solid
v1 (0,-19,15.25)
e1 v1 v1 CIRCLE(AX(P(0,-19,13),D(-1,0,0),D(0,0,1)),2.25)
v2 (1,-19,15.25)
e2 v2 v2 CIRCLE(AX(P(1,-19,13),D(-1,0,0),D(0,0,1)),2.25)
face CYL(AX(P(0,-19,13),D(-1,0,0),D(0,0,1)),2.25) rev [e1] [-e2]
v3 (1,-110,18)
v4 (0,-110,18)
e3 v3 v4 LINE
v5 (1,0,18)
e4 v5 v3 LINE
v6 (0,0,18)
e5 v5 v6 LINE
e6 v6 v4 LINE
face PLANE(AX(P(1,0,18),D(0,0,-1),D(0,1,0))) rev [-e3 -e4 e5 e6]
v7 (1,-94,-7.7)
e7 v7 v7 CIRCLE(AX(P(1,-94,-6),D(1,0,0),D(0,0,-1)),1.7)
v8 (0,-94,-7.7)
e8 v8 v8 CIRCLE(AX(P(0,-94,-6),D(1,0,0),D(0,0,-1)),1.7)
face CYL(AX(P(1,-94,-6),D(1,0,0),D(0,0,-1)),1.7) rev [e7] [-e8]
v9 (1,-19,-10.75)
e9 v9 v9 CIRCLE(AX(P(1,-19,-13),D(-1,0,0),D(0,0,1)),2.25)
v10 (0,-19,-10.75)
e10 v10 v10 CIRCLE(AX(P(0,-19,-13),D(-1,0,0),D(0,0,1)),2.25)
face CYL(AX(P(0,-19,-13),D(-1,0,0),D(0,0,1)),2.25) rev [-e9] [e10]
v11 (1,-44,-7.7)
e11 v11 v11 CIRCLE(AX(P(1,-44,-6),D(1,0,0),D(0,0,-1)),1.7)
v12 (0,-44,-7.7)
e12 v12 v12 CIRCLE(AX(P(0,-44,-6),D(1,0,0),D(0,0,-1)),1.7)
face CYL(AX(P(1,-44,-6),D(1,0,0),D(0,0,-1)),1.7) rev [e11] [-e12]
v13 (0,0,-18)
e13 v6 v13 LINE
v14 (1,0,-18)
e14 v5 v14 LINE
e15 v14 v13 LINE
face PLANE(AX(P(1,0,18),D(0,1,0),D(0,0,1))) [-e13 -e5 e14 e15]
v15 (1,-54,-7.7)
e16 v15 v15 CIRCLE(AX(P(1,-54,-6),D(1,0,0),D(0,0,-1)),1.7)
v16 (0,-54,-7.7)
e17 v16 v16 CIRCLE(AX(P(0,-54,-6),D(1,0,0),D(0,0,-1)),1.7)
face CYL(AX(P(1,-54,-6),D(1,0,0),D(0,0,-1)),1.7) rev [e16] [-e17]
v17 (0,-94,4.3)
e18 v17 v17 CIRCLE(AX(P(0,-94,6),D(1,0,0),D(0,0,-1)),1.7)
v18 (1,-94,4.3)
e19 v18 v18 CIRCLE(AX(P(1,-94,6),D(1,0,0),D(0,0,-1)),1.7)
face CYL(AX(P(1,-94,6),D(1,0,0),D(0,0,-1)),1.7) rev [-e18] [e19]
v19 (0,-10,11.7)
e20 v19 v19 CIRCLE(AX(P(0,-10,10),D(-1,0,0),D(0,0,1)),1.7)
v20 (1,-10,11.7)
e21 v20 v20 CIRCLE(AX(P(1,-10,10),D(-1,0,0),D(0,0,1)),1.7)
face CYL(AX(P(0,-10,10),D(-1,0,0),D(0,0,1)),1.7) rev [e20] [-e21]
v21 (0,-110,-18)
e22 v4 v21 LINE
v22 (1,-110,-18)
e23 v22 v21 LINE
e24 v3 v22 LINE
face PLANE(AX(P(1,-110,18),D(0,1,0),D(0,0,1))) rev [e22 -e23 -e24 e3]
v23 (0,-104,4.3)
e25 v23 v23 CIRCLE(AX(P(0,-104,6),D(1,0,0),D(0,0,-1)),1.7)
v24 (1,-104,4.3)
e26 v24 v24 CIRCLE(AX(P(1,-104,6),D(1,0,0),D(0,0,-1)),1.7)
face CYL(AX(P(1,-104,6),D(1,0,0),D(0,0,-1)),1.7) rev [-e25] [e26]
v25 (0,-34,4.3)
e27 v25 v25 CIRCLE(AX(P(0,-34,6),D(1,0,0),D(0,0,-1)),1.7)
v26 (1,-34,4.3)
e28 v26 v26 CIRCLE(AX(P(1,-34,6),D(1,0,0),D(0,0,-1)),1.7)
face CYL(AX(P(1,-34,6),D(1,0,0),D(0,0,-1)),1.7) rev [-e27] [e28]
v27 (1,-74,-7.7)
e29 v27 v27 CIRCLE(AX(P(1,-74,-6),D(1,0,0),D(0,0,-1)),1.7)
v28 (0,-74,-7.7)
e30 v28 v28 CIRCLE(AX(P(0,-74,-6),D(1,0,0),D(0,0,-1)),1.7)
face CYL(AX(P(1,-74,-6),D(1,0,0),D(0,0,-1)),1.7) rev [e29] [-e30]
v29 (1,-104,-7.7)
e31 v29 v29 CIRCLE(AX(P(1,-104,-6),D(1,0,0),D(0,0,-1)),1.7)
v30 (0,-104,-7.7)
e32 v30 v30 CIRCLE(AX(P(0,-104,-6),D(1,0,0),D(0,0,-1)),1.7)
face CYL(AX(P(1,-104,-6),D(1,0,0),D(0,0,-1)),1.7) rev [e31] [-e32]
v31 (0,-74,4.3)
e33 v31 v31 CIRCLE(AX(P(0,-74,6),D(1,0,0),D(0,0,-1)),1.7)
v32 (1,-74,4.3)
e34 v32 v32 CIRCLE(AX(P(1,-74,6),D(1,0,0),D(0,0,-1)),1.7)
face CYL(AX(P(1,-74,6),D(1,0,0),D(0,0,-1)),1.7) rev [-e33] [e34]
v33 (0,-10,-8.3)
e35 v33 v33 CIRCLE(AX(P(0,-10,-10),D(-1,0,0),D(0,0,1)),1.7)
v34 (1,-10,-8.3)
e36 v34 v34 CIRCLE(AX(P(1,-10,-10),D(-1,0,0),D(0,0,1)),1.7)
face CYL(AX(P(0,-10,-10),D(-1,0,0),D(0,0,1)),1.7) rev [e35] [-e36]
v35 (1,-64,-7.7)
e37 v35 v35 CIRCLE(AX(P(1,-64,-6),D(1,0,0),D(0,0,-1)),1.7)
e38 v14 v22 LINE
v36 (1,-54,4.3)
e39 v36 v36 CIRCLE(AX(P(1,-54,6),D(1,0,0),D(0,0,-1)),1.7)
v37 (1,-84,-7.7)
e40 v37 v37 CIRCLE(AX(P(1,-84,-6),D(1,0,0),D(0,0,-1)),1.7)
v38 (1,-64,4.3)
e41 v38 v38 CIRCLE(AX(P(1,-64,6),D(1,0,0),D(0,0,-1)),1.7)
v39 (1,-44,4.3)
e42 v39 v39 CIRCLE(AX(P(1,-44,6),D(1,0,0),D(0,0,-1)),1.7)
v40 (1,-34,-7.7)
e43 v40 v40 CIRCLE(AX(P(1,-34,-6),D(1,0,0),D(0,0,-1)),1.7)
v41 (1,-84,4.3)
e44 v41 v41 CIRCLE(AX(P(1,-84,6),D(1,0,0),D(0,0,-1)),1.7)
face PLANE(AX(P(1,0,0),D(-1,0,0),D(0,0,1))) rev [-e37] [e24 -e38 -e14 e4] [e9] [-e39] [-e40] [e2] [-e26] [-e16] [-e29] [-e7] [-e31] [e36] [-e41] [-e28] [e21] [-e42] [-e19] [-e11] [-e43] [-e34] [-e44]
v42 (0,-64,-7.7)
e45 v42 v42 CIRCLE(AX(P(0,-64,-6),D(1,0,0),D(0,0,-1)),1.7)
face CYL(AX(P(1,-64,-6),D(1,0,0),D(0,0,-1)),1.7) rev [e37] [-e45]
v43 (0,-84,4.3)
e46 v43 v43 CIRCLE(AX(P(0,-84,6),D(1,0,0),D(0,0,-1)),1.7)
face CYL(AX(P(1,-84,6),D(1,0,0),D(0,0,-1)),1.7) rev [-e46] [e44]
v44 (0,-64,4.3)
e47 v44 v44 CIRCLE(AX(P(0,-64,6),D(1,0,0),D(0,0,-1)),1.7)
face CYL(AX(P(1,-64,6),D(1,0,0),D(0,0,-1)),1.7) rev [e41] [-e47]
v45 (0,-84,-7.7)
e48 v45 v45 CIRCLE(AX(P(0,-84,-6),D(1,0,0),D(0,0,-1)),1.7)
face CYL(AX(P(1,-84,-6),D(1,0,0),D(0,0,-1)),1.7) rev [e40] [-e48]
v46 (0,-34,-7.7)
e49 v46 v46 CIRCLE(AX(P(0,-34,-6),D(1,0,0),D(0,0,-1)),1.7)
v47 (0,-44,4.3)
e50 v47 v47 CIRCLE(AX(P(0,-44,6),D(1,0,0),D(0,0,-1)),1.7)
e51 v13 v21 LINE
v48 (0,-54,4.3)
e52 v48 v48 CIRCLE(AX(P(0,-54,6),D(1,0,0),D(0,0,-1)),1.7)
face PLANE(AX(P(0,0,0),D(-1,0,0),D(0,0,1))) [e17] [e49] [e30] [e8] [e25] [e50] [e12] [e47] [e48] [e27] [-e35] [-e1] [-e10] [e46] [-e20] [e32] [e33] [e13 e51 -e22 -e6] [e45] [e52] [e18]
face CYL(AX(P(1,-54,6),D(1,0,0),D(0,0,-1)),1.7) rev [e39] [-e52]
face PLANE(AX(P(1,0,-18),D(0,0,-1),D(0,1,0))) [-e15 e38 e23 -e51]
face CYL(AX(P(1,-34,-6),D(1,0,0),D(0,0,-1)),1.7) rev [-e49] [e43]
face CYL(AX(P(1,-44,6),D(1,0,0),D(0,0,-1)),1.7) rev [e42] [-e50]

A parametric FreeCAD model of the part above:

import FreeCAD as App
import Part
import Sketcher

V = App.Vector
Q = App.Units.Quantity

doc = App.newDocument("Part")
body = doc.addObject("PartDesign::Body", "Body")

sketch1 = body.newObject("Sketcher::SketchObject", "Sketch")
sketch1.AttachmentSupport = (doc.getObject("YZ_Plane"), [""])
sketch1.MapMode = "FlatFace"
sketch1.addGeometry([
    Part.LineSegment(V(0, 18, 0), V(-110, 18, 0)),
    Part.LineSegment(V(-110, 18, 0), V(-110, -18, 0)),
    Part.LineSegment(V(-110, -18, 0), V(0, -18, 0)),
    Part.LineSegment(V(0, -18, 0), V(0, 18, 0)),
], False)
sketch1.addConstraint([
    Sketcher.Constraint("Coincident", 0, 2, 1, 1),
    Sketcher.Constraint("Coincident", 1, 2, 2, 1),
    Sketcher.Constraint("Coincident", 2, 2, 3, 1),
    Sketcher.Constraint("Coincident", 3, 2, 0, 1),
    Sketcher.Constraint("Horizontal", 0),
    Sketcher.Constraint("Vertical", 1),
    Sketcher.Constraint("Horizontal", 2),
    Sketcher.Constraint("Vertical", 3),
    Sketcher.Constraint("Symmetric", 2, 2, 3, 2, -1, 1),
    Sketcher.Constraint("DistanceX", 0, 2, 0, 1, Q("110 mm")),
    Sketcher.Constraint("DistanceY", 1, 2, 1, 1, Q("36 mm")),
])
pad1 = body.newObject("PartDesign::Pad", "Pad")
pad1.Profile = sketch1
pad1.Length = 1

sketch2 = body.newObject("Sketcher::SketchObject", "Sketch001")
sketch2.AttachmentSupport = (doc.getObject("YZ_Plane"), [""])
sketch2.MapMode = "FlatFace"
sketch2.addGeometry([
    Part.Circle(V(-10, -10, 0), V(0, 0, 1), 1.7),
    Part.Circle(V(-10, 10, 0), V(0, 0, 1), 1.7),
], False)
sketch2.addConstraint([
    Sketcher.Constraint("Equal", 0, 1),
    Sketcher.Constraint("Symmetric", 0, 3, 1, 3, -1),
    Sketcher.Constraint("Diameter", 0, Q("3.4 mm")),
    Sketcher.Constraint("DistanceX", 0, 3, -1, 1, Q("10 mm")),
    Sketcher.Constraint("DistanceY", 0, 3, -1, 1, Q("10 mm")),
])
doc.recompute()
hole = body.newObject("PartDesign::Hole", "Hole")
hole.Profile = sketch2
hole.ThreadType = "None"
hole.Diameter = 3.4
hole.DepthType = "ThroughAll"
hole.Reversed = True

sketch3 = body.newObject("Sketcher::SketchObject", "Sketch002")
sketch3.AttachmentSupport = (doc.getObject("YZ_Plane"), [""])
sketch3.MapMode = "FlatFace"
sketch3.addGeometry([
    Part.Circle(V(-19, -13, 0), V(0, 0, 1), 2.2),
    Part.Circle(V(-19, 13, 0), V(0, 0, 1), 2.2),
], False)
sketch3.addConstraint([
    Sketcher.Constraint("Equal", 0, 1),
    Sketcher.Constraint("Symmetric", 0, 3, 1, 3, -1),
    Sketcher.Constraint("Diameter", 0, Q("4.5 mm")),
    Sketcher.Constraint("DistanceX", 0, 3, -1, 1, Q("19 mm")),
    Sketcher.Constraint("DistanceY", 0, 3, -1, 1, Q("13 mm")),
])
doc.recompute()
hole2 = body.newObject("PartDesign::Hole", "Hole001")
hole2.Profile = sketch3
hole2.ThreadType = "None"
hole2.Diameter = 4.5
hole2.DepthType = "ThroughAll"
hole2.Reversed = True

sketch4 = body.newObject("Sketcher::SketchObject", "Sketch003")
sketch4.AttachmentSupport = (doc.getObject("YZ_Plane"), [""])
sketch4.MapMode = "FlatFace"
sketch4.AttachmentOffset = App.Placement(V(0, 0, 1), App.Rotation())
sketch4.addGeometry([
    Part.Circle(V(-104, -6, 0), V(0, 0, 1), 1.7),
    Part.Circle(V(-104, 6, 0), V(0, 0, 1), 1.7),
    Part.Circle(V(-94, -6, 0), V(0, 0, 1), 1.7),
    Part.Circle(V(-94, 6, 0), V(0, 0, 1), 1.7),
    Part.Circle(V(-84, -6, 0), V(0, 0, 1), 1.7),
    Part.Circle(V(-84, 6, 0), V(0, 0, 1), 1.7),
    Part.Circle(V(-74, -6, 0), V(0, 0, 1), 1.7),
    Part.Circle(V(-74, 6, 0), V(0, 0, 1), 1.7),
    Part.Circle(V(-64, -6, 0), V(0, 0, 1), 1.7),
    Part.Circle(V(-64, 6, 0), V(0, 0, 1), 1.7),
    Part.Circle(V(-54, -6, 0), V(0, 0, 1), 1.7),
    Part.Circle(V(-54, 6, 0), V(0, 0, 1), 1.7),
    Part.Circle(V(-44, -6, 0), V(0, 0, 1), 1.7),
    Part.Circle(V(-44, 6, 0), V(0, 0, 1), 1.7),
    Part.Circle(V(-34, -6, 0), V(0, 0, 1), 1.7),
    Part.Circle(V(-34, 6, 0), V(0, 0, 1), 1.7),
], False)
sketch4.addConstraint([
    Sketcher.Constraint("Equal", 0, 1),
    Sketcher.Constraint("Equal", 1, 2),
    Sketcher.Constraint("Equal", 2, 3),
    Sketcher.Constraint("Equal", 3, 4),
    Sketcher.Constraint("Equal", 4, 5),
    Sketcher.Constraint("Equal", 5, 6),
    Sketcher.Constraint("Equal", 6, 7),
    Sketcher.Constraint("Equal", 7, 8),
    Sketcher.Constraint("Equal", 8, 9),
    Sketcher.Constraint("Equal", 9, 10),
    Sketcher.Constraint("Equal", 10, 11),
    Sketcher.Constraint("Equal", 11, 12),
    Sketcher.Constraint("Equal", 12, 13),
    Sketcher.Constraint("Equal", 13, 14),
    Sketcher.Constraint("Equal", 14, 15),
    Sketcher.Constraint("Symmetric", 0, 3, 1, 3, -1),
    Sketcher.Constraint("Symmetric", 2, 3, 3, 3, -1),
    Sketcher.Constraint("Symmetric", 4, 3, 5, 3, -1),
    Sketcher.Constraint("Symmetric", 6, 3, 7, 3, -1),
    Sketcher.Constraint("Symmetric", 8, 3, 9, 3, -1),
    Sketcher.Constraint("Symmetric", 10, 3, 11, 3, -1),
    Sketcher.Constraint("Symmetric", 12, 3, 13, 3, -1),
    Sketcher.Constraint("Symmetric", 14, 3, 15, 3, -1),
    Sketcher.Constraint("Horizontal", 0, 3, 2, 3),
    Sketcher.Constraint("Horizontal", 2, 3, 4, 3),
    Sketcher.Constraint("Horizontal", 4, 3, 6, 3),
    Sketcher.Constraint("Horizontal", 6, 3, 8, 3),
    Sketcher.Constraint("Horizontal", 8, 3, 10, 3),
    Sketcher.Constraint("Horizontal", 10, 3, 12, 3),
    Sketcher.Constraint("Horizontal", 12, 3, 14, 3),
    Sketcher.Constraint("Diameter", 0, Q("3.4 mm")),
    Sketcher.Constraint("DistanceX", 0, 3, -1, 1, Q("104 mm")),
    Sketcher.Constraint("DistanceY", 0, 3, -1, 1, Q("6 mm")),
    Sketcher.Constraint("DistanceX", 2, 3, -1, 1, Q("94 mm")),
    Sketcher.Constraint("DistanceX", 4, 3, -1, 1, Q("84 mm")),
    Sketcher.Constraint("DistanceX", 6, 3, -1, 1, Q("74 mm")),
    Sketcher.Constraint("DistanceX", 8, 3, -1, 1, Q("64 mm")),
    Sketcher.Constraint("DistanceX", 10, 3, -1, 1, Q("54 mm")),
    Sketcher.Constraint("DistanceX", 12, 3, -1, 1, Q("44 mm")),
    Sketcher.Constraint("DistanceX", 14, 3, -1, 1, Q("34 mm")),
])
doc.recompute()
hole3 = body.newObject("PartDesign::Hole", "Hole002")
hole3.Profile = sketch4
hole3.ThreadType = "None"
hole3.Diameter = 3.4
hole3.DepthType = "ThroughAll"

doc.recompute()
